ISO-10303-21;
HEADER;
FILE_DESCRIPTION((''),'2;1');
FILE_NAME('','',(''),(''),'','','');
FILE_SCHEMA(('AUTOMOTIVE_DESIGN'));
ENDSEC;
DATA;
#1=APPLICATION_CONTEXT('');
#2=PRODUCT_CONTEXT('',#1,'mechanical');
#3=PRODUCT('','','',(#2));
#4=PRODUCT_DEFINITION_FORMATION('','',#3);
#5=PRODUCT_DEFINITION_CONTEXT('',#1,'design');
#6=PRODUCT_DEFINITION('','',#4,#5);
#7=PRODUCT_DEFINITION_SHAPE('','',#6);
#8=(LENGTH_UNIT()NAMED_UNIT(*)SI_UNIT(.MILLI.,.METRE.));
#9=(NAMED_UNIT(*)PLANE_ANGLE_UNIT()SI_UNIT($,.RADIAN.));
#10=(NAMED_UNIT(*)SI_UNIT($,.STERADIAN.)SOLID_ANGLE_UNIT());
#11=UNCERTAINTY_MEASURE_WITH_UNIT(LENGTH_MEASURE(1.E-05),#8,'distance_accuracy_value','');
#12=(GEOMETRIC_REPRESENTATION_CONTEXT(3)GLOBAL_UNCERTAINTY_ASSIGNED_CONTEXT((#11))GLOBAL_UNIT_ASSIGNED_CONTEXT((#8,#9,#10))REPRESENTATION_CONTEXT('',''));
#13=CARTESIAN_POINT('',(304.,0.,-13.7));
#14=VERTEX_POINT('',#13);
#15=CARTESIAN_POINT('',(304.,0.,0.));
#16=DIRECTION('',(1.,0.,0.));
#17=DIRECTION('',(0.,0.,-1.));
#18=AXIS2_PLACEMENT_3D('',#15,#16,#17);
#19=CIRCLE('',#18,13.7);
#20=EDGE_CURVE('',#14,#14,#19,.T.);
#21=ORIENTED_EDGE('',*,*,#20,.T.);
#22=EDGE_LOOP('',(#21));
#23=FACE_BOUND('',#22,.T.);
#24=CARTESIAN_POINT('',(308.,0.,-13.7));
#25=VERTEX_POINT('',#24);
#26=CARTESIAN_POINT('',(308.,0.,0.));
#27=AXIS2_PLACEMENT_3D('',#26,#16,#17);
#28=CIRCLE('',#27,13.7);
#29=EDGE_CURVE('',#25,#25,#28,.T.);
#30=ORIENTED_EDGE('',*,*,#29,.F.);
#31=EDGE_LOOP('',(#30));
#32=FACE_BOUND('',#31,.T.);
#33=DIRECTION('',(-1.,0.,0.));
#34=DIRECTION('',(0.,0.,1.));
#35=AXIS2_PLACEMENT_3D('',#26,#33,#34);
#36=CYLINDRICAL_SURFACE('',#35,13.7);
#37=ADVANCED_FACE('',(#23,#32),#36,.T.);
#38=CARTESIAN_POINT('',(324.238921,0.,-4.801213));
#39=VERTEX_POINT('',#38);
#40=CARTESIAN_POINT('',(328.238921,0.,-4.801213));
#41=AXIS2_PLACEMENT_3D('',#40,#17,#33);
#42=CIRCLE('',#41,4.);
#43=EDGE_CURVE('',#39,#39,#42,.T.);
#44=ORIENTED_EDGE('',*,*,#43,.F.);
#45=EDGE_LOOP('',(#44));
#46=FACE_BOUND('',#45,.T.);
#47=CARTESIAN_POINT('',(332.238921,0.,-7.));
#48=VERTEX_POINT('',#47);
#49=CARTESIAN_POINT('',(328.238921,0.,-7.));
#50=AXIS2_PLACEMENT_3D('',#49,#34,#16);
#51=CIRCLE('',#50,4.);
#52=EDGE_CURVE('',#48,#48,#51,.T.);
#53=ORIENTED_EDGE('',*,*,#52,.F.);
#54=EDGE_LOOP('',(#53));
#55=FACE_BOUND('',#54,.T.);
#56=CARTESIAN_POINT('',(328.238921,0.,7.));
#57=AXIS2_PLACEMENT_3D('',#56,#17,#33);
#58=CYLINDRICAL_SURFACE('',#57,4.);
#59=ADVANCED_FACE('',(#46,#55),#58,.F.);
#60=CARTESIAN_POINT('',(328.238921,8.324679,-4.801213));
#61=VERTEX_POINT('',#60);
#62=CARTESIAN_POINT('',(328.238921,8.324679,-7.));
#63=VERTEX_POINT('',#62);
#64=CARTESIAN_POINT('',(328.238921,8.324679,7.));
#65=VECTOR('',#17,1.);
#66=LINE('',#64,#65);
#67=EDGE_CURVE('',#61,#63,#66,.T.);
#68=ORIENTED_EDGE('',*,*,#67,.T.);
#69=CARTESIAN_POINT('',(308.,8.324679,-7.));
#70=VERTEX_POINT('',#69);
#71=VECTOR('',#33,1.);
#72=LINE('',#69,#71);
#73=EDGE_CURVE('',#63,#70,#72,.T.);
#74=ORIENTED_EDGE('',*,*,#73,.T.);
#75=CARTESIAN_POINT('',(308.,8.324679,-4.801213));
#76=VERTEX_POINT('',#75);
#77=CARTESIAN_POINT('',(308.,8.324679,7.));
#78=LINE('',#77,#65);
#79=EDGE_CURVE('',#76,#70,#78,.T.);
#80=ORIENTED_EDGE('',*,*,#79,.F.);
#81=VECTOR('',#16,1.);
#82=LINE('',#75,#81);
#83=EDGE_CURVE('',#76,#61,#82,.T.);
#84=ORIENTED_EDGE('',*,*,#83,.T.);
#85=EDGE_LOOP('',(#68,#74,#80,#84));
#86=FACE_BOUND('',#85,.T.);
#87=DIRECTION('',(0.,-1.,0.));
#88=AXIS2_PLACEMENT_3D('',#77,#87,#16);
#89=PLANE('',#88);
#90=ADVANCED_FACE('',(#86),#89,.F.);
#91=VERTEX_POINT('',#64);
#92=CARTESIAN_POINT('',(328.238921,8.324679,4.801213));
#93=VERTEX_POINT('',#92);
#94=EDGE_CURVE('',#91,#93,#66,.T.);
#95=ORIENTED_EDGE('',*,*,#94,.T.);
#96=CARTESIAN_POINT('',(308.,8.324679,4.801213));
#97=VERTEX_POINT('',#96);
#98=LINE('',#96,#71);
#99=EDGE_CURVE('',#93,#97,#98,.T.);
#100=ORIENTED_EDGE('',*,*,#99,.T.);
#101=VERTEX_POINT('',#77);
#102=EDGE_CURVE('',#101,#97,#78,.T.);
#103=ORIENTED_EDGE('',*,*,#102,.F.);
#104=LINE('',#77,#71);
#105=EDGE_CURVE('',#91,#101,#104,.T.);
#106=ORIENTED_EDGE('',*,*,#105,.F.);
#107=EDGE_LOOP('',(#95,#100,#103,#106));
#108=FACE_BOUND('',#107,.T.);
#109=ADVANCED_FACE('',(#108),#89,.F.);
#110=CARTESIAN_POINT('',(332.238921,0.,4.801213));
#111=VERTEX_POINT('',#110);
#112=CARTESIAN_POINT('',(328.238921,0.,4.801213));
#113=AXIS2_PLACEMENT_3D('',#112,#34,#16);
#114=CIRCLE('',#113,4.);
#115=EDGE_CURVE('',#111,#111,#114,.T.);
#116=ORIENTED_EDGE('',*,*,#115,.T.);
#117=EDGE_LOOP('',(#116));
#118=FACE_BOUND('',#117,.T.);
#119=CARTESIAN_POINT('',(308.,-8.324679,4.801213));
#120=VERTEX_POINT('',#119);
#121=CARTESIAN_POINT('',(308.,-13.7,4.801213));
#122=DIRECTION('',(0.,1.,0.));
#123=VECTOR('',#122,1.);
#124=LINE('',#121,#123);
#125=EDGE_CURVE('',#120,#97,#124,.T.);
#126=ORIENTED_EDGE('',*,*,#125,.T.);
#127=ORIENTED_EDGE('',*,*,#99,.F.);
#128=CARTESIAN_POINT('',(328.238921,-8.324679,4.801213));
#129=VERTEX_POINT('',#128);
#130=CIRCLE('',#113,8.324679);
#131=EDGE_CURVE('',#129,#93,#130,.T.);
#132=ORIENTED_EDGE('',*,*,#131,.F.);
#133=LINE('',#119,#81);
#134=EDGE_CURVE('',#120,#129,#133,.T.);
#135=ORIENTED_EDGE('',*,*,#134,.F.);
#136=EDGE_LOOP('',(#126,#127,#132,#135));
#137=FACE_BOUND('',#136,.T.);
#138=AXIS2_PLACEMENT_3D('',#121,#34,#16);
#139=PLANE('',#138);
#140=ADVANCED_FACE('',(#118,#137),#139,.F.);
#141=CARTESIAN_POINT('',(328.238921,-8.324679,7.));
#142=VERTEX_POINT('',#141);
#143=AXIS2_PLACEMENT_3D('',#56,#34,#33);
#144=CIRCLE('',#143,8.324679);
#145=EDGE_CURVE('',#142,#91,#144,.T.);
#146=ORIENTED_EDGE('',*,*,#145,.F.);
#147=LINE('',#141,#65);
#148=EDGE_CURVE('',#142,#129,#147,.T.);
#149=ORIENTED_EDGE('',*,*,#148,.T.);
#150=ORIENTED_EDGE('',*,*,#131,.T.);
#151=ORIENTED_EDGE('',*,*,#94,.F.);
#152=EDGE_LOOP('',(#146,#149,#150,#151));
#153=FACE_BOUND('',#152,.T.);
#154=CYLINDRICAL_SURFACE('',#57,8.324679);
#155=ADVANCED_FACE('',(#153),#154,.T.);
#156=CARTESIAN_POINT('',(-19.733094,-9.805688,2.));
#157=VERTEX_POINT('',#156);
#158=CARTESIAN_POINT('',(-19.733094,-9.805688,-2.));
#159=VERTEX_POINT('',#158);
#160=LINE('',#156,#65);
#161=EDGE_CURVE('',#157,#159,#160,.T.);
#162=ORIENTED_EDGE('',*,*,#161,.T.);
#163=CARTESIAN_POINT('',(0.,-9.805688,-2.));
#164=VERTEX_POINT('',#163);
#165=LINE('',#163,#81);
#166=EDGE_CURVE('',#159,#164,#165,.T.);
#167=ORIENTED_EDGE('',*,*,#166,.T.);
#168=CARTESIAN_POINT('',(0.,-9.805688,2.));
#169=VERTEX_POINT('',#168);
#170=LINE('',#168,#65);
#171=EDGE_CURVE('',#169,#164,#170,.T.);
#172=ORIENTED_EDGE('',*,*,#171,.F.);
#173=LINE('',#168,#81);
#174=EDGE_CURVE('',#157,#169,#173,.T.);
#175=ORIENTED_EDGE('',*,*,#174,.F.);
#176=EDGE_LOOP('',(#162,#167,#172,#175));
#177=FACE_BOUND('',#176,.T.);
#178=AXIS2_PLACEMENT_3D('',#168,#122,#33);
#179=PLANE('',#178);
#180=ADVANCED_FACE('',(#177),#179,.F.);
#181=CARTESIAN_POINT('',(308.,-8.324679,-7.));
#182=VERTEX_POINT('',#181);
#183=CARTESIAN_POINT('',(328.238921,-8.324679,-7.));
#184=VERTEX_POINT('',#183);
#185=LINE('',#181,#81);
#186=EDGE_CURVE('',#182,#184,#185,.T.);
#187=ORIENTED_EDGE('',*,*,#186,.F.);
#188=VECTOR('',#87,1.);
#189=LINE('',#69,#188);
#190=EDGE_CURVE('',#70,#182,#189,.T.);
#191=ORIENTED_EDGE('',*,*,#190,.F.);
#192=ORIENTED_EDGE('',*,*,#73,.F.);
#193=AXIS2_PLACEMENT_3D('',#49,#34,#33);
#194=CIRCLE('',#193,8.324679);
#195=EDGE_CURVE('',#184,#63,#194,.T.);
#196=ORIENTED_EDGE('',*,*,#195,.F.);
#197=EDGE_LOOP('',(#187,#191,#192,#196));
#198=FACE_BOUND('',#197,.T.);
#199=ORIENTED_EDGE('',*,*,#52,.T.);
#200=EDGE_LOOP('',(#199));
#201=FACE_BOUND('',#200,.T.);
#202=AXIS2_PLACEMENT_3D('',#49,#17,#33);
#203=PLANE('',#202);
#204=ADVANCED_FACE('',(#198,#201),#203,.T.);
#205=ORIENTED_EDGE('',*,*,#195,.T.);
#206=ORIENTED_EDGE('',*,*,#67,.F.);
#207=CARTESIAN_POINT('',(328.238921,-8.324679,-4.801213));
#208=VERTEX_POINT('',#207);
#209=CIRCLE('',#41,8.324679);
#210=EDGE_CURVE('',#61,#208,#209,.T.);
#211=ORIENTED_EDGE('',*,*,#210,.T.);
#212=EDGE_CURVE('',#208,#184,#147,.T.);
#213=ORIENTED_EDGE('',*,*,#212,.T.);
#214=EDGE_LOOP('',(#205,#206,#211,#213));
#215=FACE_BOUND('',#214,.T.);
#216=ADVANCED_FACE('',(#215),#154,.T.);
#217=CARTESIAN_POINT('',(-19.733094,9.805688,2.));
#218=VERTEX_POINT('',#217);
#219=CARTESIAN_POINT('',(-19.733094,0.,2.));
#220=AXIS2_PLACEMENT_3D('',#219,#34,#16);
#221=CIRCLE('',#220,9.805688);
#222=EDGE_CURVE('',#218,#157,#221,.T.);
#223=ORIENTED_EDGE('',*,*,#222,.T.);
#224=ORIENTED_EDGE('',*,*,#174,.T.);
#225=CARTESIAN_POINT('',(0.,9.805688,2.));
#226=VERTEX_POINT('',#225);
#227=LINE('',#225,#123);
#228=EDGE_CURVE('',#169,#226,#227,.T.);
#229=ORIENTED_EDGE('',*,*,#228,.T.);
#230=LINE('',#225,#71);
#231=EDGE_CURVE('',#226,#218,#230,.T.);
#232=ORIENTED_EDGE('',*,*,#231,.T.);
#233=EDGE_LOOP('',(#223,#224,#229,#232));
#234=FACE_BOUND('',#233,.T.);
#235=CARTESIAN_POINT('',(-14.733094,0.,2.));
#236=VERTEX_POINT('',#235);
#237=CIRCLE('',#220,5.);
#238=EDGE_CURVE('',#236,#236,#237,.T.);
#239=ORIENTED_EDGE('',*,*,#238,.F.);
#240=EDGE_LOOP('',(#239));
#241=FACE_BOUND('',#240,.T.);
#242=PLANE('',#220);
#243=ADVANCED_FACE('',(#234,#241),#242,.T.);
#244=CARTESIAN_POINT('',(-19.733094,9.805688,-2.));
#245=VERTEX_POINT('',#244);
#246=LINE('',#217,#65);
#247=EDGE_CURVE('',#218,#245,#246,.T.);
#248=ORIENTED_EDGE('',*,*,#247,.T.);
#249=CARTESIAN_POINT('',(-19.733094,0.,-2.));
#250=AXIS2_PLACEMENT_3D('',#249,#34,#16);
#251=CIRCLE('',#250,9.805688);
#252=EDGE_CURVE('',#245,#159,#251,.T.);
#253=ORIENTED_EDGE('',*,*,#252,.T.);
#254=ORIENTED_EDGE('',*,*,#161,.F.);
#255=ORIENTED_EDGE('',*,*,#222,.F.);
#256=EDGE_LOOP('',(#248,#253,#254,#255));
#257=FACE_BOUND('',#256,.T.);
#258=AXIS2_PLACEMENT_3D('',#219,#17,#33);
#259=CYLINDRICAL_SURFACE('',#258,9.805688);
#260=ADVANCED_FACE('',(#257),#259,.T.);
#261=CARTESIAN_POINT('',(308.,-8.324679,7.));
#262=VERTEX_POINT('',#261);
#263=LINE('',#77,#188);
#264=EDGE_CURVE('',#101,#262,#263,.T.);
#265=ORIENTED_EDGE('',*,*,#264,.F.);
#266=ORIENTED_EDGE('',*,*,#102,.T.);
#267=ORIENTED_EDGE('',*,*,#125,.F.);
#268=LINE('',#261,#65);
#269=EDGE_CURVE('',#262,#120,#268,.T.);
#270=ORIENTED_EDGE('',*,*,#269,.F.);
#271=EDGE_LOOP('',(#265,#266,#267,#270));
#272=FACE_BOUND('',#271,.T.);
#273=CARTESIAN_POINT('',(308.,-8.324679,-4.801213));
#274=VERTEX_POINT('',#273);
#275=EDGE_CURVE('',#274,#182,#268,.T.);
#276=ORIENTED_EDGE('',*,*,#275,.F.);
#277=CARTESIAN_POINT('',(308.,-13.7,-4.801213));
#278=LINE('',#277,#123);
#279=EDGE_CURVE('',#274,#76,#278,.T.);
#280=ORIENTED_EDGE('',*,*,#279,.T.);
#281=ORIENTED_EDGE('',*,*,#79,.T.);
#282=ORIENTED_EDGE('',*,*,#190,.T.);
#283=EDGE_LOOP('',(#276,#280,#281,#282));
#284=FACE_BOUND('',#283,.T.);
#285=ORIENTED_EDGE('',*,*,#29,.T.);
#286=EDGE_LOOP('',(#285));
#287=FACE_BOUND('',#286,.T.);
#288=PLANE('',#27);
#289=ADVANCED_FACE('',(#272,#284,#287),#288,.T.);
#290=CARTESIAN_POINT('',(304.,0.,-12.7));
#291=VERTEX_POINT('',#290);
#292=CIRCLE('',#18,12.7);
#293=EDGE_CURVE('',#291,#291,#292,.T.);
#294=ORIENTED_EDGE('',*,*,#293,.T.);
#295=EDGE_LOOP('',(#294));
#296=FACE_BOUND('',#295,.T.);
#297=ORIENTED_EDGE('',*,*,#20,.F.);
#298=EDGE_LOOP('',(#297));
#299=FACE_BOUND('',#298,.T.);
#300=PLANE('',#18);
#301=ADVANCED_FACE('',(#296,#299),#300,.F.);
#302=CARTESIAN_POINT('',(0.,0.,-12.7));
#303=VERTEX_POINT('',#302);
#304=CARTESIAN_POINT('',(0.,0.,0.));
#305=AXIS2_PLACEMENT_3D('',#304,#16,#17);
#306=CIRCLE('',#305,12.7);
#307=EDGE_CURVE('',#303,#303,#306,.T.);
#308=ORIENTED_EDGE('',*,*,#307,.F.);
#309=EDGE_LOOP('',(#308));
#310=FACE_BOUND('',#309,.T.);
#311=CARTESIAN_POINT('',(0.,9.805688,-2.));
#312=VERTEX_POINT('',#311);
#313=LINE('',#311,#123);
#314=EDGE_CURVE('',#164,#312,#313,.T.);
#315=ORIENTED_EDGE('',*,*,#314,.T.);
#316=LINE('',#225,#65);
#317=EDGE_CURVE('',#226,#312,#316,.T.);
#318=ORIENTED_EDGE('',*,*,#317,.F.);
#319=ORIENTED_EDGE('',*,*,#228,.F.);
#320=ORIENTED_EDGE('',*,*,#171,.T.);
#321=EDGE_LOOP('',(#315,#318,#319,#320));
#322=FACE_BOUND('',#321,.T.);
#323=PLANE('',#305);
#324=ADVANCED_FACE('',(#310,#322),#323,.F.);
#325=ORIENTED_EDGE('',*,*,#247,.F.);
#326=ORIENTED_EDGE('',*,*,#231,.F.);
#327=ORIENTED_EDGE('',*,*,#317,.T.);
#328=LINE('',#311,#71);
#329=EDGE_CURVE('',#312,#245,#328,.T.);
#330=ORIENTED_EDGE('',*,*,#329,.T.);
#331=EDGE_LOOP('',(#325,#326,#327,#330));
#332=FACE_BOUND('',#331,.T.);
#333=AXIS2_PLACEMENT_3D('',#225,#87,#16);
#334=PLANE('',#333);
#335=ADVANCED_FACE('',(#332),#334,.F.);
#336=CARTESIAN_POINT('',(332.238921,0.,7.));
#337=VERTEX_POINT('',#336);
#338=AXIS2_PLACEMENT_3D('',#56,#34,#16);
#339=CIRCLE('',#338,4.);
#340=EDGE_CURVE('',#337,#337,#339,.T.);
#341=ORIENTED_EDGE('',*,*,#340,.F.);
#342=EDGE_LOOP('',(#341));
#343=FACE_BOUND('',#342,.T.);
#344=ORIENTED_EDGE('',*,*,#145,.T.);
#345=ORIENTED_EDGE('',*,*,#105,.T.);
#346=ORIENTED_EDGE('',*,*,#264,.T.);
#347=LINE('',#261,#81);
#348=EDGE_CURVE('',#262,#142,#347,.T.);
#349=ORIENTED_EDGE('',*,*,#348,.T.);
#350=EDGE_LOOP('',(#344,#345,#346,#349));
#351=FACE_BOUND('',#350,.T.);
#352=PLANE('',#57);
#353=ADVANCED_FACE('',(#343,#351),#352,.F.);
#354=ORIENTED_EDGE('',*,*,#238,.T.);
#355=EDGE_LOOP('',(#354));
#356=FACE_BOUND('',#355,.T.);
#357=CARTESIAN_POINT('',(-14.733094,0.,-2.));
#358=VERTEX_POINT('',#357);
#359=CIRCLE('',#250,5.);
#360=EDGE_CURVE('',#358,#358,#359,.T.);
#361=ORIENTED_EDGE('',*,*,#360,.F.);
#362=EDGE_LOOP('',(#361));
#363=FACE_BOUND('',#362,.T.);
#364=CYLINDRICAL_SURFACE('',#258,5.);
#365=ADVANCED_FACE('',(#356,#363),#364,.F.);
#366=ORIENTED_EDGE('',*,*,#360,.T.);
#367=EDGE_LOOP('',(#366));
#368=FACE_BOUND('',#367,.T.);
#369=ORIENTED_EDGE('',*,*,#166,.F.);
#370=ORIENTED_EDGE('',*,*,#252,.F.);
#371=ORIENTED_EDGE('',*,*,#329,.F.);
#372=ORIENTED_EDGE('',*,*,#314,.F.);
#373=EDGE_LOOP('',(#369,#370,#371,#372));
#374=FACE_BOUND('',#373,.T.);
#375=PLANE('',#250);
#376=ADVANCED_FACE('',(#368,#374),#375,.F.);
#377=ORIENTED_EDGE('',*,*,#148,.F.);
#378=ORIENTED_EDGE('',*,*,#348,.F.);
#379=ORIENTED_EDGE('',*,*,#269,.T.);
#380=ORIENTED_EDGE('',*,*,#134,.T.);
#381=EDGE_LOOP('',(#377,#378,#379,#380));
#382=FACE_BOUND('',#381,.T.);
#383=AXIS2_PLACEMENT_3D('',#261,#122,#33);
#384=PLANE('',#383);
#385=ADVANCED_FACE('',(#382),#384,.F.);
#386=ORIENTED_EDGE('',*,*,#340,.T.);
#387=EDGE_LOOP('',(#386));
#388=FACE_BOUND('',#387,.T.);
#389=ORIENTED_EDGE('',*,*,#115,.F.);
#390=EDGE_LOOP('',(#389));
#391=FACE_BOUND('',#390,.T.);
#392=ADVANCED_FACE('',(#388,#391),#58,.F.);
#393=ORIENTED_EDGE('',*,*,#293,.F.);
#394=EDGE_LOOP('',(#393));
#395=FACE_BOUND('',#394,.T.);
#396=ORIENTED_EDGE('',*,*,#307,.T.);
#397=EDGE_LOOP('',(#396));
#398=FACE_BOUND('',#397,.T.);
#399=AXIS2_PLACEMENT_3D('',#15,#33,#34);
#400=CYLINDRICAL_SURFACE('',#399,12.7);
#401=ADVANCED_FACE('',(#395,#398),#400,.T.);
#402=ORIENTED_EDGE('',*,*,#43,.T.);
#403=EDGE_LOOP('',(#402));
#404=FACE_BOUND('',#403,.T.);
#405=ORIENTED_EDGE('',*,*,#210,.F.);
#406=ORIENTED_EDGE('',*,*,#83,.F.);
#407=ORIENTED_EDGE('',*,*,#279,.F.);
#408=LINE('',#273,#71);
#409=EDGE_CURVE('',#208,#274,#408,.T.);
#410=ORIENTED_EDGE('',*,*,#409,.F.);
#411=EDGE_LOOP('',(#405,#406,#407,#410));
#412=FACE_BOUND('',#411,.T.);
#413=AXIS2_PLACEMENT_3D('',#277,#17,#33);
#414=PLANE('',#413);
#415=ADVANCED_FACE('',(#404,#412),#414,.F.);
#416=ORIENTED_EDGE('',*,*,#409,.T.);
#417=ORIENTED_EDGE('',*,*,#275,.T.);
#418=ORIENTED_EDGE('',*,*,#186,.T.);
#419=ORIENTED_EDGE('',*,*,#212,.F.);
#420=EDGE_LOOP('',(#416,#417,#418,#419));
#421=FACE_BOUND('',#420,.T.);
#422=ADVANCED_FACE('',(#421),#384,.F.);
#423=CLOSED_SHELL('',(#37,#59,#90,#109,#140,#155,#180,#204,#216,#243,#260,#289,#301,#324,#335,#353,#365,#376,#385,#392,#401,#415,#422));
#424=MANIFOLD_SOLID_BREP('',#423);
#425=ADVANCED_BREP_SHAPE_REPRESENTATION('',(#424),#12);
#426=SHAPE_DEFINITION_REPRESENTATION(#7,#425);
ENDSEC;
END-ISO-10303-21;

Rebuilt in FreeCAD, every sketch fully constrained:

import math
import FreeCAD as App
import Part
import Sketcher
from FreeCAD import Vector


def add_polygon(sketch, points):
    """Adds a closed chain of lines whose ends are joined by coincident constraints."""
    first, n = sketch.GeometryCount, len(points)
    for a, b in zip(points, points[1:] + points[:1]):
        sketch.addGeometry(Part.LineSegment(App.Vector(*a, 0), App.Vector(*b, 0)), False)
    for i in range(n):
        sketch.addConstraint(Sketcher.Constraint("Coincident", first + i, 2, first + (i + 1) % n, 1))

doc = App.newDocument("Part")
body = doc.addObject("PartDesign::Body", "Body")

sketch1 = body.newObject("Sketcher::SketchObject", "Sketch")
sketch1.AttachmentSupport = (doc.getObject("YZ_Plane"), [""])
sketch1.MapMode = "FlatFace"
sketch1.addGeometry(Part.Circle(Vector(0, 0, 0), Vector(0, 0, 1), 13), False)
sketch1.addConstraint([
    Sketcher.Constraint("Coincident", 0, 3, -1, 1),
    Sketcher.Constraint("Diameter", 0, 25.4),
])
pad1 = body.newObject("PartDesign::Pad", "Pad")
pad1.Profile = sketch1
pad1.Length = 304

sketch2 = body.newObject("Sketcher::SketchObject", "Sketch001")
sketch2.AttachmentSupport = (doc.getObject("XY_Plane"), [""])
sketch2.MapMode = "FlatFace"
sketch2.addGeometry([
    Part.LineSegment(Vector(0, 10, 0), Vector(-20, 10, 0)),
    Part.ArcOfCircle(Part.Circle(Vector(-20, 0, 0), Vector(0, 0, 1), 10), math.radians(90), math.radians(270)),
    Part.LineSegment(Vector(-20, -10, 0), Vector(0, -10, 0)),
    Part.LineSegment(Vector(0, -10, 0), Vector(0, 10, 0)),
    Part.Circle(Vector(-20, 0, 0), Vector(0, 0, 1), 5),
], False)
sketch2.addConstraint([
    Sketcher.Constraint("Tangent", 0, 2, 1, 1),
    Sketcher.Constraint("Tangent", 1, 2, 2, 1),
    Sketcher.Constraint("Coincident", 2, 2, 3, 1),
    Sketcher.Constraint("Coincident", 3, 2, 0, 1),
    Sketcher.Constraint("Horizontal", 0),
    Sketcher.Constraint("Horizontal", 2),
    Sketcher.Constraint("Vertical", 3),
    Sketcher.Constraint("Coincident", 4, 3, 1, 3),
    Sketcher.Constraint("Symmetric", 2, 2, 3, 2, -1, 1),
    Sketcher.Constraint("Diameter", 4, 10.0),
    Sketcher.Constraint("Radius", 1, 9.805688),
    Sketcher.Constraint("DistanceX", 0, 2, 0, 1, 19.733094),
])
pad2 = body.newObject("PartDesign::Pad", "Pad001")
pad2.Profile = sketch2
pad2.Length = 4
pad2.Midplane = True

sketch3 = body.newObject("Sketcher::SketchObject", "Sketch002")
sketch3.AttachmentSupport = (doc.getObject("YZ_Plane"), [""])
sketch3.MapMode = "FlatFace"
sketch3.AttachmentOffset = App.Placement(Vector(0, 0, 304), App.Rotation())
sketch3.addGeometry(Part.Circle(Vector(0, 0, 0), Vector(0, 0, 1), 14), False)
sketch3.addConstraint([
    Sketcher.Constraint("Coincident", 0, 3, -1, 1),
    Sketcher.Constraint("Diameter", 0, 27.4),
])
pad3 = body.newObject("PartDesign::Pad", "Pad002")
pad3.Profile = sketch3
pad3.Length = 4

sketch4 = body.newObject("Sketcher::SketchObject", "Sketch003")
sketch4.AttachmentSupport = (doc.getObject("XY_Plane"), [""])
sketch4.MapMode = "FlatFace"
sketch4.addGeometry([
    Part.LineSegment(Vector(328.2, 8.3, 0), Vector(308, 8.3, 0)),
    Part.LineSegment(Vector(308, 8.3, 0), Vector(308, -8.3, 0)),
    Part.LineSegment(Vector(308, -8.3, 0), Vector(328.2, -8.3, 0)),
    Part.ArcOfCircle(Part.Circle(Vector(328.2, 0, 0), Vector(0, 0, 1), 8.3), math.radians(-90), math.radians(90)),
    Part.Circle(Vector(328.2, 0, 0), Vector(0, 0, 1), 4),
], False)
sketch4.addConstraint([
    Sketcher.Constraint("Coincident", 0, 2, 1, 1),
    Sketcher.Constraint("Coincident", 1, 2, 2, 1),
    Sketcher.Constraint("Tangent", 2, 2, 3, 1),
    Sketcher.Constraint("Tangent", 3, 2, 0, 1),
    Sketcher.Constraint("Horizontal", 0),
    Sketcher.Constraint("Vertical", 1),
    Sketcher.Constraint("Horizontal", 2),
    Sketcher.Constraint("Coincident", 4, 3, 3, 3),
    Sketcher.Constraint("PointOnObject", 3, 3, -1),
    Sketcher.Constraint("Diameter", 4, 8.0),
    Sketcher.Constraint("DistanceX", -1, 1, 0, 2, 308.0),
    Sketcher.Constraint("Radius", 3, 8.324679),
    Sketcher.Constraint("DistanceX", 0, 2, 0, 1, 20.238921),
])
pad4 = body.newObject("PartDesign::Pad", "Pad003")
pad4.Profile = sketch4
pad4.Length = 14
pad4.Midplane = True

sketch5 = body.newObject("Sketcher::SketchObject", "Sketch004")
sketch5.AttachmentSupport = (doc.getObject("XZ_Plane"), [""])
sketch5.MapMode = "FlatFace"
add_polygon(sketch5, [(308, -5), (308, 5), (360, 5), (360, -5)])
sketch5.addConstraint([
    Sketcher.Constraint("Vertical", 0),
    Sketcher.Constraint("Horizontal", 1),
    Sketcher.Constraint("Vertical", 2),
    Sketcher.Constraint("Horizontal", 3),
    Sketcher.Constraint("DistanceX", -1, 1, 0, 2, 308.0),
    Sketcher.Constraint("DistanceX", 1, 1, 1, 2, 51.727972),
    Sketcher.Constraint("DistanceY", 0, 1, 0, 2, 9.602426),
    Sketcher.Constraint("DistanceY", -1, 1, 0, 2, 4.801213),
])
pocket1 = body.newObject("PartDesign::Pocket", "Pocket")
pocket1.Profile = sketch5
pocket1.Type = "ThroughAll"
pocket1.Midplane = True

doc.recompute()
